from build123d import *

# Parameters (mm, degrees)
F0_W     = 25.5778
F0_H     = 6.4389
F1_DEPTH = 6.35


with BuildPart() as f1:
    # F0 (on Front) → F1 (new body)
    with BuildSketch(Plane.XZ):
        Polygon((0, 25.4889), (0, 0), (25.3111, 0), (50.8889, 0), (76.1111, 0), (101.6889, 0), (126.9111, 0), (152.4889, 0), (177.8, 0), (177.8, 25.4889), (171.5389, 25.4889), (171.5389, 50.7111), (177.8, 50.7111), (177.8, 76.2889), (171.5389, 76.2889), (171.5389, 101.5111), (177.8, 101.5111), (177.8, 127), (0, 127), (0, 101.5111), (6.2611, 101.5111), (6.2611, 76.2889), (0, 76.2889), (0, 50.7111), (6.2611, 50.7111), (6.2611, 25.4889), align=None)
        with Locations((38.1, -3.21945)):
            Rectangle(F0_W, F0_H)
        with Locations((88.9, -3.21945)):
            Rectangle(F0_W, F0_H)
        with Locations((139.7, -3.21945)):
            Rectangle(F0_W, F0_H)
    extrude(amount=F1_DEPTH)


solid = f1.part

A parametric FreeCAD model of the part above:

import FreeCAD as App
import Part
import Sketcher
from FreeCAD import Vector
Q = App.Units.Quantity

doc = App.newDocument("Part")
body = doc.addObject("PartDesign::Body", "Body")

# Sketch on XZ plane
sketch1 = body.newObject("Sketcher::SketchObject", "Sketch")
sketch1.AttachmentSupport = (doc.getObject("XZ_Plane"), [""])
sketch1.MapMode = "FlatFace"
sketch1.addGeometry([
    Part.LineSegment(Vector(0, 25, 0), Vector(0, 0, 0)),  # 0
    Part.LineSegment(Vector(0, 0, 0), Vector(25, 0, 0)),  # 1
    Part.LineSegment(Vector(25, 0, 0), Vector(25, -6, 0)),  # 2
    Part.LineSegment(Vector(25, -6, 0), Vector(51, -6, 0)),  # 3
    Part.LineSegment(Vector(51, -6, 0), Vector(51, 0, 0)),  # 4
    Part.LineSegment(Vector(51, 0, 0), Vector(76, 0, 0)),  # 5
    Part.LineSegment(Vector(76, 0, 0), Vector(76, -6, 0)),  # 6
    Part.LineSegment(Vector(76, -6, 0), Vector(102, -6, 0)),  # 7
    Part.LineSegment(Vector(102, -6, 0), Vector(102, 0, 0)),  # 8
    Part.LineSegment(Vector(102, 0, 0), Vector(127, 0, 0)),  # 9
    Part.LineSegment(Vector(127, 0, 0), Vector(127, -6, 0)),  # 10
    Part.LineSegment(Vector(127, -6, 0), Vector(152, -6, 0)),  # 11
    Part.LineSegment(Vector(152, -6, 0), Vector(152, 0, 0)),  # 12
    Part.LineSegment(Vector(152, 0, 0), Vector(178, 0, 0)),  # 13
    Part.LineSegment(Vector(178, 0, 0), Vector(178, 25, 0)),  # 14
    Part.LineSegment(Vector(178, 25, 0), Vector(172, 25, 0)),  # 15
    Part.LineSegment(Vector(172, 25, 0), Vector(172, 51, 0)),  # 16
    Part.LineSegment(Vector(172, 51, 0), Vector(178, 51, 0)),  # 17
    Part.LineSegment(Vector(178, 51, 0), Vector(178, 76, 0)),  # 18
    Part.LineSegment(Vector(178, 76, 0), Vector(172, 76, 0)),  # 19
    Part.LineSegment(Vector(172, 76, 0), Vector(172, 102, 0)),  # 20
    Part.LineSegment(Vector(172, 102, 0), Vector(178, 102, 0)),  # 21
    Part.LineSegment(Vector(178, 102, 0), Vector(178, 127, 0)),  # 22
    Part.LineSegment(Vector(178, 127, 0), Vector(0, 127, 0)),  # 23
    Part.LineSegment(Vector(0, 127, 0), Vector(0, 102, 0)),  # 24
    Part.LineSegment(Vector(0, 102, 0), Vector(6, 102, 0)),  # 25
    Part.LineSegment(Vector(6, 102, 0), Vector(6, 76, 0)),  # 26
    Part.LineSegment(Vector(6, 76, 0), Vector(0, 76, 0)),  # 27
    Part.LineSegment(Vector(0, 76, 0), Vector(0, 51, 0)),  # 28
    Part.LineSegment(Vector(0, 51, 0), Vector(6, 51, 0)),  # 29
    Part.LineSegment(Vector(6, 51, 0), Vector(6, 25, 0)),  # 30
    Part.LineSegment(Vector(6, 25, 0), Vector(0, 25, 0)),  # 31
], False)
sketch1.addConstraint([
    Sketcher.Constraint("Coincident", 0, 2, 1, 1),
    Sketcher.Constraint("Coincident", 1, 2, 2, 1),
    Sketcher.Constraint("Coincident", 2, 2, 3, 1),
    Sketcher.Constraint("Coincident", 3, 2, 4, 1),
    Sketcher.Constraint("Coincident", 4, 2, 5, 1),
    Sketcher.Constraint("Coincident", 5, 2, 6, 1),
    Sketcher.Constraint("Coincident", 6, 2, 7, 1),
    Sketcher.Constraint("Coincident", 7, 2, 8, 1),
    Sketcher.Constraint("Coincident", 8, 2, 9, 1),
    Sketcher.Constraint("Coincident", 9, 2, 10, 1),
    Sketcher.Constraint("Coincident", 10, 2, 11, 1),
    Sketcher.Constraint("Coincident", 11, 2, 12, 1),
    Sketcher.Constraint("Coincident", 12, 2, 13, 1),
    Sketcher.Constraint("Coincident", 13, 2, 14, 1),
    Sketcher.Constraint("Coincident", 14, 2, 15, 1),
    Sketcher.Constraint("Coincident", 15, 2, 16, 1),
    Sketcher.Constraint("Coincident", 16, 2, 17, 1),
    Sketcher.Constraint("Coincident", 17, 2, 18, 1),
    Sketcher.Constraint("Coincident", 18, 2, 19, 1),
    Sketcher.Constraint("Coincident", 19, 2, 20, 1),
    Sketcher.Constraint("Coincident", 20, 2, 21, 1),
    Sketcher.Constraint("Coincident", 21, 2, 22, 1),
    Sketcher.Constraint("Coincident", 22, 2, 23, 1),
    Sketcher.Constraint("Coincident", 23, 2, 24, 1),
    Sketcher.Constraint("Coincident", 24, 2, 25, 1),
    Sketcher.Constraint("Coincident", 25, 2, 26, 1),
    Sketcher.Constraint("Coincident", 26, 2, 27, 1),
    Sketcher.Constraint("Coincident", 27, 2, 28, 1),
    Sketcher.Constraint("Coincident", 28, 2, 29, 1),
    Sketcher.Constraint("Coincident", 29, 2, 30, 1),
    Sketcher.Constraint("Coincident", 30, 2, 31, 1),
    Sketcher.Constraint("Coincident", 31, 2, 0, 1),
    Sketcher.Constraint("Vertical", 0),
    Sketcher.Constraint("Horizontal", 1),
    Sketcher.Constraint("Vertical", 2),
    Sketcher.Constraint("Horizontal", 3),
    Sketcher.Constraint("Vertical", 4),
    Sketcher.Constraint("Horizontal", 5),
    Sketcher.Constraint("Vertical", 6),
    Sketcher.Constraint("Horizontal", 7),
    Sketcher.Constraint("Vertical", 8),
    Sketcher.Constraint("Horizontal", 9),
    Sketcher.Constraint("Vertical", 10),
    Sketcher.Constraint("Horizontal", 11),
    Sketcher.Constraint("Vertical", 12),
    Sketcher.Constraint("Horizontal", 13),
    Sketcher.Constraint("Vertical", 14),
    Sketcher.Constraint("Horizontal", 15),
    Sketcher.Constraint("Vertical", 16),
    Sketcher.Constraint("Horizontal", 17),
    Sketcher.Constraint("Vertical", 18),
    Sketcher.Constraint("Horizontal", 19),
    Sketcher.Constraint("Vertical", 20),
    Sketcher.Constraint("Horizontal", 21),
    Sketcher.Constraint("Vertical", 22),
    Sketcher.Constraint("Horizontal", 23),
    Sketcher.Constraint("Vertical", 24),
    Sketcher.Constraint("Horizontal", 25),
    Sketcher.Constraint("Vertical", 26),
    Sketcher.Constraint("Horizontal", 27),
    Sketcher.Constraint("Vertical", 28),
    Sketcher.Constraint("Horizontal", 29),
    Sketcher.Constraint("Vertical", 30),
    Sketcher.Constraint("Horizontal", 31),
    Sketcher.Constraint("Coincident", 0, 2, -1, 1),
    Sketcher.Constraint("PointOnObject", 4, 2, -1),
    Sketcher.Constraint("PointOnObject", 8, 2, -1),
    Sketcher.Constraint("PointOnObject", 12, 2, -1),
    Sketcher.Constraint("PointOnObject", 23, 2, -2),
    Sketcher.Constraint("PointOnObject", 27, 2, -2),
    Sketcher.Constraint("Horizontal", 3, 2, 6, 2),
    Sketcher.Constraint("Horizontal", 7, 2, 10, 2),
    Sketcher.Constraint("Horizontal", 21, 2, 24, 2),
    Sketcher.Constraint("Horizontal", 19, 2, 26, 2),
    Sketcher.Constraint("Horizontal", 17, 2, 28, 2),
    Sketcher.Constraint("Horizontal", 15, 2, 30, 2),
    Sketcher.Constraint("Vertical", 14, 2, 17, 2),
    Sketcher.Constraint("Vertical", 16, 2, 19, 2),
    Sketcher.Constraint("Vertical", 18, 2, 21, 2),
    Sketcher.Constraint("Vertical", 26, 2, 29, 2),
    Sketcher.Constraint("Equal", 3, 7),
    Sketcher.Constraint("Equal", 5, 9),
    Sketcher.Constraint("Equal", 7, 11),
    Sketcher.Constraint("Equal", 1, 13),
    Sketcher.Constraint("Equal", 21, 25),
    Sketcher.Constraint("Equal", 9, 16),
    Sketcher.Constraint("Equal", 11, 18),
    Sketcher.Constraint("Equal", 16, 20),
    Sketcher.Constraint("Equal", 14, 22),
    Sketcher.Constraint("DistanceX", 23, 2, 23, 1, Q("7 in")),
    Sketcher.Constraint("DistanceY", -1, 1, 22, 2, Q("5 in")),
    Sketcher.Constraint("DistanceX", 1, 2, 5, 2, Q("2 in")),
    Sketcher.Constraint("DistanceX", 3, 1, 3, 2, Q("1.007 in")),
    Sketcher.Constraint("DistanceX", 12, 2, 15, 2, Q("0.75 in")),
    Sketcher.Constraint("DistanceY", 11, 2, 16, 2, Q("2.25 in")),
])
pad1 = body.newObject("PartDesign::Pad", "Pad")
pad1.Profile = sketch1
pad1.Length = Q("0.25 in")

doc.recompute()
